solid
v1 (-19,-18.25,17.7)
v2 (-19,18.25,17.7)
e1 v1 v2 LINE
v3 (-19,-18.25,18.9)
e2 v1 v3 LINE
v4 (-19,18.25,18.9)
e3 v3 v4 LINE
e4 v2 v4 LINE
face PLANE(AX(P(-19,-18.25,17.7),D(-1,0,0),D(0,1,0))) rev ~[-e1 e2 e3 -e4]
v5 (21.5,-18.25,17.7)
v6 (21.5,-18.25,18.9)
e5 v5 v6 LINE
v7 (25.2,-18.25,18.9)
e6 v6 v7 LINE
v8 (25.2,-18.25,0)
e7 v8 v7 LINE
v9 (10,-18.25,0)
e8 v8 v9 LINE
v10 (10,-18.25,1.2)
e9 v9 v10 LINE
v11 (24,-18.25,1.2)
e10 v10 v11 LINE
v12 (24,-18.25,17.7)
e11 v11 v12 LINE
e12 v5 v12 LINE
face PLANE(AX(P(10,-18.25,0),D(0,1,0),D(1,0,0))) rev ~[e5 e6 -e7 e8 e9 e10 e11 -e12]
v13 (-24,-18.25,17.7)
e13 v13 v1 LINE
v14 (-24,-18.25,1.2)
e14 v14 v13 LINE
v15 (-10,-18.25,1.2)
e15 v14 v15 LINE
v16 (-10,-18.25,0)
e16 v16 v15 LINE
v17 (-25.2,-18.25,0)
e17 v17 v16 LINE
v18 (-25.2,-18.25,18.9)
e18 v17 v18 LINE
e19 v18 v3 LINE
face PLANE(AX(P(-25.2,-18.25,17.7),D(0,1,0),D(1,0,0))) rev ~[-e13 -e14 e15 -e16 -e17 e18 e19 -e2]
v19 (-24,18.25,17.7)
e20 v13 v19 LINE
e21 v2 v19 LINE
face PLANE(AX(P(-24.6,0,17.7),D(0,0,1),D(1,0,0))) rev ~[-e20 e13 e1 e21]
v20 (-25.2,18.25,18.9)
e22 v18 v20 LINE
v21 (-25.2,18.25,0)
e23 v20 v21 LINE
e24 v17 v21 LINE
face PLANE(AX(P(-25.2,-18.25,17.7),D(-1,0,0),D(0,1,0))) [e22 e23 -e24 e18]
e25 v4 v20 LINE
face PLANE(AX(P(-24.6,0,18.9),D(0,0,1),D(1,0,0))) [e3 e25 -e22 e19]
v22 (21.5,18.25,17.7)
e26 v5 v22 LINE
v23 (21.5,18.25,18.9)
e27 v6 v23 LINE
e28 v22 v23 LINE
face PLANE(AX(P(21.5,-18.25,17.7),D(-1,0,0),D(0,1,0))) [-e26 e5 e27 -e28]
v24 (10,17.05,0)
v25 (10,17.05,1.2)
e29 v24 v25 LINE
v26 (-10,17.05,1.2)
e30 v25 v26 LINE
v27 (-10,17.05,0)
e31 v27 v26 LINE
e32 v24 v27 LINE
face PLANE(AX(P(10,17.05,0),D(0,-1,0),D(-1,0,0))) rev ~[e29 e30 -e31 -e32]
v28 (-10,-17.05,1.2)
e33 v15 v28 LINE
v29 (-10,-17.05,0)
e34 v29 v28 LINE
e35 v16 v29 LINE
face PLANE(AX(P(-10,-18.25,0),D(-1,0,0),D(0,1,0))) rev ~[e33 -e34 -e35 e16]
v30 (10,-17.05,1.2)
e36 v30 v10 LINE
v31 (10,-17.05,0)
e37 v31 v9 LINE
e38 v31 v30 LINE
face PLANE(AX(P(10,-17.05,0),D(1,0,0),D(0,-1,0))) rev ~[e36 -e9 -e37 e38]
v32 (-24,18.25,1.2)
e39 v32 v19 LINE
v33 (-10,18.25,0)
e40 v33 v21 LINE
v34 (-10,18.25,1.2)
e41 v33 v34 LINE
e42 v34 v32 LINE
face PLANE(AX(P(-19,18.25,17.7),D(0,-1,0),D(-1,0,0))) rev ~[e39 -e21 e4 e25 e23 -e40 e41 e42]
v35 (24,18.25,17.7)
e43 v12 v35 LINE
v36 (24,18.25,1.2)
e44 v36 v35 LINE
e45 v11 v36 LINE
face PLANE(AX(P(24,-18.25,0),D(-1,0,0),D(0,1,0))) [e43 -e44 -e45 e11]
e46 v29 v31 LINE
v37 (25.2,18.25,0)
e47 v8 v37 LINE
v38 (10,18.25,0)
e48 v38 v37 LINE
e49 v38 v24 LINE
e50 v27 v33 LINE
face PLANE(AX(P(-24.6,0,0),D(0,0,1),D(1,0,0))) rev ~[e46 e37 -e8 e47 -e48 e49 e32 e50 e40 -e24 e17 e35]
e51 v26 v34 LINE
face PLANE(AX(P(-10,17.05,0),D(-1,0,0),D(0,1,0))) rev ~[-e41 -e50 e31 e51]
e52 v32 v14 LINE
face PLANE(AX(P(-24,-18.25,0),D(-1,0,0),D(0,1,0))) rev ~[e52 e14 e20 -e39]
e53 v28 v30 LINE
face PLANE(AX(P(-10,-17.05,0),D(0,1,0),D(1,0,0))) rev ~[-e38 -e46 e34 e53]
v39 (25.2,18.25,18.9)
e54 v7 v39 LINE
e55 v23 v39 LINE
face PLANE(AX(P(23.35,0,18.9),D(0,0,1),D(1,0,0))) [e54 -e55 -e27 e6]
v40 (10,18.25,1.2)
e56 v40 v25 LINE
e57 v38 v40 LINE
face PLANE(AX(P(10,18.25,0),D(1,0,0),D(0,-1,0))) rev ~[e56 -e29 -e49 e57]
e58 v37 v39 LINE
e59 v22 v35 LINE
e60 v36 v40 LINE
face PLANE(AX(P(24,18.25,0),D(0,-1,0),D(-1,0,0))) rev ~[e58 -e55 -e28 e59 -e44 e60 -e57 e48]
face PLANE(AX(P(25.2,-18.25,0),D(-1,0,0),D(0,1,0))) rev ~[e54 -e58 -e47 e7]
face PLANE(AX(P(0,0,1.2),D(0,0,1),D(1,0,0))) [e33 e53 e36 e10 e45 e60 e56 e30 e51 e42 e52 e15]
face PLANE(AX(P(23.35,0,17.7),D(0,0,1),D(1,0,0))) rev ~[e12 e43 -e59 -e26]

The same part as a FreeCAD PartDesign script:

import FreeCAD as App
import Part
import Sketcher
from FreeCAD import Vector

doc = App.newDocument("Part")
body = doc.addObject("PartDesign::Body", "Body")

# Sketch on XY plane
sketch1 = doc.addObject("Sketcher::SketchObject", "Sketch")
body.addObject(sketch1)
sketch1.AttachmentSupport = (doc.XY_Plane, [""])
sketch1.MapMode = "FlatFace"
sketch1.addGeometry(Part.LineSegment(Vector(10, -18.2, 0), Vector(24, -18.2, 0)), False)
sketch1.addGeometry(Part.LineSegment(Vector(24, -18.2, 0), Vector(24, 18.2, 0)), False)
sketch1.addGeometry(Part.LineSegment(Vector(24, 18.2, 0), Vector(10, 18.2, 0)), False)
sketch1.addGeometry(Part.LineSegment(Vector(10, 18.2, 0), Vector(10, 17.1, 0)), False)
sketch1.addGeometry(Part.LineSegment(Vector(10, 17.1, 0), Vector(-10, 17.1, 0)), False)
sketch1.addGeometry(Part.LineSegment(Vector(-10, 17.1, 0), Vector(-10, 18.2, 0)), False)
sketch1.addGeometry(Part.LineSegment(Vector(-10, 18.2, 0), Vector(-24, 18.2, 0)), False)
sketch1.addGeometry(Part.LineSegment(Vector(-24, 18.2, 0), Vector(-24, -18.2, 0)), False)
sketch1.addGeometry(Part.LineSegment(Vector(-24, -18.2, 0), Vector(-10, -18.2, 0)), False)
sketch1.addGeometry(Part.LineSegment(Vector(-10, -18.2, 0), Vector(-10, -17.1, 0)), False)
sketch1.addGeometry(Part.LineSegment(Vector(-10, -17.1, 0), Vector(10, -17.1, 0)), False)
sketch1.addGeometry(Part.LineSegment(Vector(10, -17.1, 0), Vector(10, -18.2, 0)), False)
sketch1.addConstraint(Sketcher.Constraint("Coincident", 0, 2, 1, 1))
sketch1.addConstraint(Sketcher.Constraint("Coincident", 1, 2, 2, 1))
sketch1.addConstraint(Sketcher.Constraint("Coincident", 2, 2, 3, 1))
sketch1.addConstraint(Sketcher.Constraint("Coincident", 3, 2, 4, 1))
sketch1.addConstraint(Sketcher.Constraint("Coincident", 4, 2, 5, 1))
sketch1.addConstraint(Sketcher.Constraint("Coincident", 5, 2, 6, 1))
sketch1.addConstraint(Sketcher.Constraint("Coincident", 6, 2, 7, 1))
sketch1.addConstraint(Sketcher.Constraint("Coincident", 7, 2, 8, 1))
sketch1.addConstraint(Sketcher.Constraint("Coincident", 8, 2, 9, 1))
sketch1.addConstraint(Sketcher.Constraint("Coincident", 9, 2, 10, 1))
sketch1.addConstraint(Sketcher.Constraint("Coincident", 10, 2, 11, 1))
sketch1.addConstraint(Sketcher.Constraint("Coincident", 11, 2, 0, 1))
sketch1.addConstraint(Sketcher.Constraint("Horizontal", 0))
sketch1.addConstraint(Sketcher.Constraint("Vertical", 1))
sketch1.addConstraint(Sketcher.Constraint("Horizontal", 2))
sketch1.addConstraint(Sketcher.Constraint("Vertical", 3))
sketch1.addConstraint(Sketcher.Constraint("Horizontal", 4))
sketch1.addConstraint(Sketcher.Constraint("Vertical", 5))
sketch1.addConstraint(Sketcher.Constraint("Horizontal", 6))
sketch1.addConstraint(Sketcher.Constraint("Vertical", 7))
sketch1.addConstraint(Sketcher.Constraint("Horizontal", 8))
sketch1.addConstraint(Sketcher.Constraint("Vertical", 9))
sketch1.addConstraint(Sketcher.Constraint("Horizontal", 10))
sketch1.addConstraint(Sketcher.Constraint("Vertical", 11))
sketch1.addConstraint(Sketcher.Constraint("Symmetric", 0, 2, 6, 2, -1, 1))
sketch1.addConstraint(Sketcher.Constraint("Symmetric", 2, 2, 8, 2, -1, 1))
sketch1.addConstraint(Sketcher.Constraint("Symmetric", 4, 2, 10, 2, -1, 1))
sketch1.addConstraint(Sketcher.Constraint("Symmetric", 2, 2, 5, 2, -2))
sketch1.addConstraint(Sketcher.Constraint("DistanceX", 0, 1, 0, 2, 14.0))
sketch1.addConstraint(Sketcher.Constraint("DistanceX", 4, 2, 4, 1, 20.0))
sketch1.addConstraint(Sketcher.Constraint("DistanceY", 1, 1, 1, 2, 36.5))
sketch1.addConstraint(Sketcher.Constraint("DistanceY", 3, 2, 3, 1, 1.2))
pad1 = doc.addObject("PartDesign::Pad", "Pad")
body.addObject(pad1)
pad1.Profile = sketch1
pad1.Length = 1.2

# Sketch on XY plane
sketch2 = doc.addObject("Sketcher::SketchObject", "Sketch001")
body.addObject(sketch2)
sketch2.AttachmentSupport = (doc.XY_Plane, [""])
sketch2.MapMode = "FlatFace"
sketch2.addGeometry(Part.LineSegment(Vector(-25.2, 18.2, 0), Vector(-25.2, -18.2, 0)), False)
sketch2.addGeometry(Part.LineSegment(Vector(-25.2, -18.2, 0), Vector(-24, -18.2, 0)), False)
sketch2.addGeometry(Part.LineSegment(Vector(-24, -18.2, 0), Vector(-24, 18.2, 0)), False)
sketch2.addGeometry(Part.LineSegment(Vector(-24, 18.2, 0), Vector(-25.2, 18.2, 0)), False)
sketch2.addGeometry(Part.LineSegment(Vector(24, 18.2, 0), Vector(24, -18.2, 0)), False)
sketch2.addGeometry(Part.LineSegment(Vector(24, -18.2, 0), Vector(25.2, -18.2, 0)), False)
sketch2.addGeometry(Part.LineSegment(Vector(25.2, -18.2, 0), Vector(25.2, 18.2, 0)), False)
sketch2.addGeometry(Part.LineSegment(Vector(25.2, 18.2, 0), Vector(24, 18.2, 0)), False)
sketch2.addConstraint(Sketcher.Constraint("Coincident", 0, 2, 1, 1))
sketch2.addConstraint(Sketcher.Constraint("Coincident", 1, 2, 2, 1))
sketch2.addConstraint(Sketcher.Constraint("Coincident", 2, 2, 3, 1))
sketch2.addConstraint(Sketcher.Constraint("Coincident", 3, 2, 0, 1))
sketch2.addConstraint(Sketcher.Constraint("Coincident", 4, 2, 5, 1))
sketch2.addConstraint(Sketcher.Constraint("Coincident", 5, 2, 6, 1))
sketch2.addConstraint(Sketcher.Constraint("Coincident", 6, 2, 7, 1))
sketch2.addConstraint(Sketcher.Constraint("Coincident", 7, 2, 4, 1))
sketch2.addConstraint(Sketcher.Constraint("Vertical", 0))
sketch2.addConstraint(Sketcher.Constraint("Horizontal", 1))
sketch2.addConstraint(Sketcher.Constraint("Vertical", 2))
sketch2.addConstraint(Sketcher.Constraint("Horizontal", 3))
sketch2.addConstraint(Sketcher.Constraint("Vertical", 4))
sketch2.addConstraint(Sketcher.Constraint("Horizontal", 5))
sketch2.addConstraint(Sketcher.Constraint("Vertical", 6))
sketch2.addConstraint(Sketcher.Constraint("Horizontal", 7))
sketch2.addConstraint(Sketcher.Constraint("Symmetric", 2, 2, 4, 2, -1, 1))
sketch2.addConstraint(Sketcher.Constraint("Symmetric", 0, 2, 6, 2, -1, 1))
sketch2.addConstraint(Sketcher.Constraint("Horizontal", 1, 2, 4, 2))
sketch2.addConstraint(Sketcher.Constraint("DistanceX", 1, 1, 1, 2, 1.2))
sketch2.addConstraint(Sketcher.Constraint("DistanceY", 0, 2, 0, 1, 36.5))
sketch2.addConstraint(Sketcher.Constraint("DistanceX", 1, 2, -1, 1, 24.0))
pad2 = doc.addObject("PartDesign::Pad", "Pad001")
body.addObject(pad2)
pad2.Profile = sketch2
pad2.Length = 17.7

# Sketch on XY plane
sketch3 = doc.addObject("Sketcher::SketchObject", "Sketch002")
body.addObject(sketch3)
sketch3.AttachmentSupport = (doc.XY_Plane, [""])
sketch3.MapMode = "FlatFace"
sketch3.AttachmentOffset = App.Placement(Vector(0, 0, 17.7), App.Rotation())
sketch3.addGeometry(Part.LineSegment(Vector(-25.2, 18.2, 0), Vector(-25.2, -18.2, 0)), False)
sketch3.addGeometry(Part.LineSegment(Vector(-25.2, -18.2, 0), Vector(-19, -18.2, 0)), False)
sketch3.addGeometry(Part.LineSegment(Vector(-19, -18.2, 0), Vector(-19, 18.2, 0)), False)
sketch3.addGeometry(Part.LineSegment(Vector(-19, 18.2, 0), Vector(-25.2, 18.2, 0)), False)
sketch3.addGeometry(Part.LineSegment(Vector(21.5, 18.2, 0), Vector(21.5, -18.2, 0)), False)
sketch3.addGeometry(Part.LineSegment(Vector(21.5, -18.2, 0), Vector(25.2, -18.2, 0)), False)
sketch3.addGeometry(Part.LineSegment(Vector(25.2, -18.2, 0), Vector(25.2, 18.2, 0)), False)
sketch3.addGeometry(Part.LineSegment(Vector(25.2, 18.2, 0), Vector(21.5, 18.2, 0)), False)
sketch3.addConstraint(Sketcher.Constraint("Coincident", 0, 2, 1, 1))
sketch3.addConstraint(Sketcher.Constraint("Coincident", 1, 2, 2, 1))
sketch3.addConstraint(Sketcher.Constraint("Coincident", 2, 2, 3, 1))
sketch3.addConstraint(Sketcher.Constraint("Coincident", 3, 2, 0, 1))
sketch3.addConstraint(Sketcher.Constraint("Coincident", 4, 2, 5, 1))
sketch3.addConstraint(Sketcher.Constraint("Coincident", 5, 2, 6, 1))
sketch3.addConstraint(Sketcher.Constraint("Coincident", 6, 2, 7, 1))
sketch3.addConstraint(Sketcher.Constraint("Coincident", 7, 2, 4, 1))
sketch3.addConstraint(Sketcher.Constraint("Vertical", 0))
sketch3.addConstraint(Sketcher.Constraint("Horizontal", 1))
sketch3.addConstraint(Sketcher.Constraint("Vertical", 2))
sketch3.addConstraint(Sketcher.Constraint("Horizontal", 3))
sketch3.addConstraint(Sketcher.Constraint("Vertical", 4))
sketch3.addConstraint(Sketcher.Constraint("Horizontal", 5))
sketch3.addConstraint(Sketcher.Constraint("Vertical", 6))
sketch3.addConstraint(Sketcher.Constraint("Horizontal", 7))
sketch3.addConstraint(Sketcher.Constraint("Symmetric", 3, 2, 5, 2, -1, 1))
sketch3.addConstraint(Sketcher.Constraint("Horizontal", 1, 2, 4, 2))
sketch3.addConstraint(Sketcher.Constraint("Horizontal", 3, 2, 6, 2))
sketch3.addConstraint(Sketcher.Constraint("DistanceX", 1, 1, 1, 2, 6.2))
sketch3.addConstraint(Sketcher.Constraint("DistanceX", 5, 1, 5, 2, 3.7))
sketch3.addConstraint(Sketcher.Constraint("DistanceY", 0, 2, 0, 1, 36.5))
sketch3.addConstraint(Sketcher.Constraint("DistanceX", 1, 2, -1, 1, 19.0))
pad3 = doc.addObject("PartDesign::Pad", "Pad002")
body.addObject(pad3)
pad3.Profile = sketch3
pad3.Length = 1.2

doc.recompute()
